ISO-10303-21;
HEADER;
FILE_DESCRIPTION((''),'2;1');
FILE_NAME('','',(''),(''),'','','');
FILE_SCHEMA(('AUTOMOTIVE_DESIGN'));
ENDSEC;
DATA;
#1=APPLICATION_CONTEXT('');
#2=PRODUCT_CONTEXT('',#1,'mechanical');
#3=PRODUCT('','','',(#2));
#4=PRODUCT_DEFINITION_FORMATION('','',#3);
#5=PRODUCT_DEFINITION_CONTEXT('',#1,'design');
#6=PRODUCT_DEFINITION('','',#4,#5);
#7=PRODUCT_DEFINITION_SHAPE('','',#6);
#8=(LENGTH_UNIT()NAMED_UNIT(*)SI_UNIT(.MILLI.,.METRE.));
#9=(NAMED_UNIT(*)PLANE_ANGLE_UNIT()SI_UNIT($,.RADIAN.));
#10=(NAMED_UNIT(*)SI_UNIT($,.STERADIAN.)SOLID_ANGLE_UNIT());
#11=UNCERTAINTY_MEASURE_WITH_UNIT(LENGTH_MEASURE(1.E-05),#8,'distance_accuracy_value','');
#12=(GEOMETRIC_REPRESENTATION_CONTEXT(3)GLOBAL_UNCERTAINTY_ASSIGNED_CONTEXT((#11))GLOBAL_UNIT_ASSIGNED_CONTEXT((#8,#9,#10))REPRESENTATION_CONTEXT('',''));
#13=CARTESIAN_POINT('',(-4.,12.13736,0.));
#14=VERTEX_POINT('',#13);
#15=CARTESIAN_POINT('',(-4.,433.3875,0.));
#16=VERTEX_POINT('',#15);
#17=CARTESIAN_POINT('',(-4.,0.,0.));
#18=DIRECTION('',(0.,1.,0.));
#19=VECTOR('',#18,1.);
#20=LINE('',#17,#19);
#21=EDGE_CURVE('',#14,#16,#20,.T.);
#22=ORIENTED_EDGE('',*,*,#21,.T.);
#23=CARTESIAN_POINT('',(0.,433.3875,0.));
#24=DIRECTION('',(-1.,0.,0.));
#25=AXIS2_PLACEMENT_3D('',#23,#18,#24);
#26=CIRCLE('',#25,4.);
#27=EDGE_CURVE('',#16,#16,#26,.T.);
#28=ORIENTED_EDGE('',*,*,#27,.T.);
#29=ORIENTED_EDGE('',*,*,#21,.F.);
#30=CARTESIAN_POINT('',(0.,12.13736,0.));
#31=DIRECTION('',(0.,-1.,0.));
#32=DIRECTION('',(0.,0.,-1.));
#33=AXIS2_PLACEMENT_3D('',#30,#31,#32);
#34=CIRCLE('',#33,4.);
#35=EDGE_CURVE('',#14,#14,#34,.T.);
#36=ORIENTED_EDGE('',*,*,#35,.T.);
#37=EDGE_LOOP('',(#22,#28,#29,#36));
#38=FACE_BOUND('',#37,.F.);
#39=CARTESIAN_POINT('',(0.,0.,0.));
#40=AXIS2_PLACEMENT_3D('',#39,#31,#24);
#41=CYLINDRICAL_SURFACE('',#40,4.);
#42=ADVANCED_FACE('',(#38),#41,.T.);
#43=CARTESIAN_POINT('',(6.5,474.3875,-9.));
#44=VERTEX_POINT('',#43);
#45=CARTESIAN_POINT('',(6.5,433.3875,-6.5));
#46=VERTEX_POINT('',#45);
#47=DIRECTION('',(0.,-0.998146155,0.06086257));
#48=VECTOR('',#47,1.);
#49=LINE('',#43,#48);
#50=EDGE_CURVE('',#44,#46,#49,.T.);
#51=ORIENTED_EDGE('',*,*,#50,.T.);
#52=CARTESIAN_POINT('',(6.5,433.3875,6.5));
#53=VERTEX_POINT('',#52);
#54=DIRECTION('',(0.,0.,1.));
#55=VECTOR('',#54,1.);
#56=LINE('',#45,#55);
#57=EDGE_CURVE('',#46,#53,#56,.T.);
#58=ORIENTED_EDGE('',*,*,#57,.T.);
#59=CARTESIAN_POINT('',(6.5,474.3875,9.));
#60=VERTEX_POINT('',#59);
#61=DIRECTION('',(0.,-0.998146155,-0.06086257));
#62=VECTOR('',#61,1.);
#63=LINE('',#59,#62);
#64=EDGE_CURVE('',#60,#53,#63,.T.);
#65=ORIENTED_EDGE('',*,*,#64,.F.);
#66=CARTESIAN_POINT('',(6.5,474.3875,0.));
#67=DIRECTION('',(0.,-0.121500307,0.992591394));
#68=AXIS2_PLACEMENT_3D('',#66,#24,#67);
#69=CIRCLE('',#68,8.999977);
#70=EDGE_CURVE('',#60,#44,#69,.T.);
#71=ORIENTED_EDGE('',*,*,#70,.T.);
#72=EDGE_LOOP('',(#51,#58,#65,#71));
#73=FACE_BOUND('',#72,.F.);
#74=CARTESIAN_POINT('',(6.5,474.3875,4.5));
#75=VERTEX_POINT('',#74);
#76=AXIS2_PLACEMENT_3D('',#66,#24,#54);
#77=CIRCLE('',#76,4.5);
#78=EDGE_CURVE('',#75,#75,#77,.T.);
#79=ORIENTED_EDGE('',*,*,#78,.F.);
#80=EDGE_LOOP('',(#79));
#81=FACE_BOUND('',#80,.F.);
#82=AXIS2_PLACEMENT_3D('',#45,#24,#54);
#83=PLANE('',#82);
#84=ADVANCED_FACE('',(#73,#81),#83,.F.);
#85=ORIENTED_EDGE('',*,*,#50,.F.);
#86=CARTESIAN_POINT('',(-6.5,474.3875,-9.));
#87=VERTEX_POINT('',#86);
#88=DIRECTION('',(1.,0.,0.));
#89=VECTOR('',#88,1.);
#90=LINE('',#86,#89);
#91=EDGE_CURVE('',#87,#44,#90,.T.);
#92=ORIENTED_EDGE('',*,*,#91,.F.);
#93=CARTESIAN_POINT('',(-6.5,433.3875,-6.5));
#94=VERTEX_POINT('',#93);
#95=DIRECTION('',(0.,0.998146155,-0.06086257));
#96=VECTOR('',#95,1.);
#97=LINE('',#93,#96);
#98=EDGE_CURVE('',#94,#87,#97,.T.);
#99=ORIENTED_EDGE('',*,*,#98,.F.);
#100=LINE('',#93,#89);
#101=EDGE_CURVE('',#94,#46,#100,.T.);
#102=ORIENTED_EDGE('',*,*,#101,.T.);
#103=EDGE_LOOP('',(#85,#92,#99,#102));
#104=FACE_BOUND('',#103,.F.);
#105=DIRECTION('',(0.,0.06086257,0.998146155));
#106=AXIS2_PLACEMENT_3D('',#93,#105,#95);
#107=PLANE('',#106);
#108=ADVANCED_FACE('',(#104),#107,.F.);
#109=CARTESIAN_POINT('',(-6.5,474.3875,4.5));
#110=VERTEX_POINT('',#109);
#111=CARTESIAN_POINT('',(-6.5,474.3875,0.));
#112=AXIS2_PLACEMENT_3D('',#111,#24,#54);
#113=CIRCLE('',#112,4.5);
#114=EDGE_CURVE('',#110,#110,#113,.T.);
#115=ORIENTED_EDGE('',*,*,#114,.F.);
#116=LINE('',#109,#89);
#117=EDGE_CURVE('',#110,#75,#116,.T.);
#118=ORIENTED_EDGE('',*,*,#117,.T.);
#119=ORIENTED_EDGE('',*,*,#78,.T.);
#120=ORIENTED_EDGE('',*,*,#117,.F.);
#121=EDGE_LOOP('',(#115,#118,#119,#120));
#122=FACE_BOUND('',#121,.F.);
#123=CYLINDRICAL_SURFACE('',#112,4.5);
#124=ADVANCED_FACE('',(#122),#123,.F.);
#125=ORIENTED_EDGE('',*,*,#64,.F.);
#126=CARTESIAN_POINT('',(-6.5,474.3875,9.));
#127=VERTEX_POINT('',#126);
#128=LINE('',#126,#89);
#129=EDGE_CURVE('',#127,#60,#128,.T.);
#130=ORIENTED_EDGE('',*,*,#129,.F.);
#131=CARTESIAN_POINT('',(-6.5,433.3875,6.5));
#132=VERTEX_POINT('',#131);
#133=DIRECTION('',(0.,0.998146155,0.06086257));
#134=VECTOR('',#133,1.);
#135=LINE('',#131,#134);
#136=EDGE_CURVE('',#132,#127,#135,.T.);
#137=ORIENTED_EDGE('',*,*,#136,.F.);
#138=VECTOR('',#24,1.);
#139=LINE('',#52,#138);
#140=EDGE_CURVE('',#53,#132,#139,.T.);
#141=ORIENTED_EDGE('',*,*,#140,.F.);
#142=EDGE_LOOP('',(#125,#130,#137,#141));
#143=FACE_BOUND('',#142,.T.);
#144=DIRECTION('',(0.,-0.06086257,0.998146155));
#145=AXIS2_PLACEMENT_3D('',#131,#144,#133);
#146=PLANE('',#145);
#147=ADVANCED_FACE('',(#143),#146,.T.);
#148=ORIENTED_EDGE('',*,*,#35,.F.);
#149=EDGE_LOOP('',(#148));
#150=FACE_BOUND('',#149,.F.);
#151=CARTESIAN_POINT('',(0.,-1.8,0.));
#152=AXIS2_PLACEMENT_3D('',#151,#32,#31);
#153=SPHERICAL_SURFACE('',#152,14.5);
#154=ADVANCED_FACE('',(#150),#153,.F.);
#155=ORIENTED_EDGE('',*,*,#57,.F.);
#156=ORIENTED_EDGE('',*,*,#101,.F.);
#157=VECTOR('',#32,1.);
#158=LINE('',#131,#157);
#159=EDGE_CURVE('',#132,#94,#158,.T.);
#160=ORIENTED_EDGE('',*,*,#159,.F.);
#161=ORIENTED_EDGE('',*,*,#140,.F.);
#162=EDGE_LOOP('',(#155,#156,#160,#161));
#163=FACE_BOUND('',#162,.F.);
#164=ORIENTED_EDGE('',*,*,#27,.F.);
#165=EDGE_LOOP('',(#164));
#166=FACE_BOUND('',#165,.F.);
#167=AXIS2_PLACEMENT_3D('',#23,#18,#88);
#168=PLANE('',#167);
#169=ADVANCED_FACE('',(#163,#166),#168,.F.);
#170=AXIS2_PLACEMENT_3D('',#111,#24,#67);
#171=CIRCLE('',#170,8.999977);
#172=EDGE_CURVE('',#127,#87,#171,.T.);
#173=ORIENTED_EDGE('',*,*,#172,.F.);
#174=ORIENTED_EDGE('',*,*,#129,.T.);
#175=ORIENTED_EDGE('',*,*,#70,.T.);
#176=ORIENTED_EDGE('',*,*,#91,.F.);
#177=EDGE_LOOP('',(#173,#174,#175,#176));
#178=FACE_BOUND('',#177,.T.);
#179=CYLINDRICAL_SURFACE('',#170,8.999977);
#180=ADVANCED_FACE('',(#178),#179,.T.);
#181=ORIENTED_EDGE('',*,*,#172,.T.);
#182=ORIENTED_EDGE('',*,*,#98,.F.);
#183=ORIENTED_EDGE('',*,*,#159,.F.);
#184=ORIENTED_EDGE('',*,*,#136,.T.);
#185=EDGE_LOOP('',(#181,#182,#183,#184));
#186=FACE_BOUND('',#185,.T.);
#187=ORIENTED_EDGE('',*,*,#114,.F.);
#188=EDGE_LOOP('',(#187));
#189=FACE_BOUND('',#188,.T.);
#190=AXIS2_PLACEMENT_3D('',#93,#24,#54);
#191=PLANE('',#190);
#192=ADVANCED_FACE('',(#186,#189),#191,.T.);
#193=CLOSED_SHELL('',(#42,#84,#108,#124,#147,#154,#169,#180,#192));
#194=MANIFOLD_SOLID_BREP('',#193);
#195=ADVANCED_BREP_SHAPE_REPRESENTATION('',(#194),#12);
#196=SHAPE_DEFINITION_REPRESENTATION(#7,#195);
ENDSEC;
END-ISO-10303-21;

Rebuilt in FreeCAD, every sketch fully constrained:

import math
import FreeCAD as App
import Part
import Sketcher
Q = App.Units.Quantity


def add_polygon(sketch, points):
    """Adds a closed chain of lines whose ends are joined by coincident constraints."""
    first, n = sketch.GeometryCount, len(points)
    for a, b in zip(points, points[1:] + points[:1]):
        sketch.addGeometry(Part.LineSegment(App.Vector(*a, 0), App.Vector(*b, 0)), False)
    for i in range(n):
        sketch.addConstraint(Sketcher.Constraint("Coincident", first + i, 2, first + (i + 1) % n, 1))

doc = App.newDocument("Part")
params = doc.addObject("Spreadsheet::Sheet", "Params")
for row, (alias, value) in enumerate([
    ("sketch1_diameter", "8 mm"),
    ("pad1_length", "433.3875 mm"),
    ("sketch2_width", "13 mm"),
    ("pad2_length", "41 mm"),
    ("sketch3_radius", "9 mm"),
    ("sketch3_width", "41 mm"),
    ("sketch3_height", "13 mm"),
    ("pad3_length", "13 mm"),
    ("sketch4_diameter", "9 mm"),
    ("pocket1_length", "15 mm"),
    ("sketch5_radius", "14.5 mm"),
    ("groove_angle", "360 deg"),
], start=1):
    params.set(f"A{row}", alias)
    params.set(f"B{row}", "=" + value)
    params.setAlias(f"B{row}", alias)

body = doc.addObject("PartDesign::Body", "Body")

sketch1 = doc.addObject("Sketcher::SketchObject", "Sketch")
body.addObject(sketch1)
sketch1.AttachmentSupport = (doc.XZ_Plane, [""])
sketch1.MapMode = "FlatFace"
sketch1.addGeometry(Part.Circle(App.Vector(0, 0, 0), App.Vector(0, 0, 1), 4), False)
sketch1.addConstraint(Sketcher.Constraint("Coincident", 0, 3, -1, 1))
sketch1.addConstraint(Sketcher.Constraint("Diameter", 0, Q("8 mm")))
sketch1.setExpression("Constraints[1]", "Params.sketch1_diameter")
pad1 = doc.addObject("PartDesign::Pad", "Pad")
body.addObject(pad1)
pad1.Profile = sketch1
pad1.setExpression("Length", "Params.pad1_length")
pad1.Reversed = True

sketch2 = doc.addObject("Sketcher::SketchObject", "Sketch001")
body.addObject(sketch2)
sketch2.AttachmentSupport = (doc.XZ_Plane, [""])
sketch2.MapMode = "FlatFace"
sketch2.AttachmentOffset = App.Placement(App.Vector(0, 0, -433.3875), App.Rotation())
add_polygon(sketch2, [(-6, 6), (6, 6), (6, -6), (-6, -6)])
sketch2.addConstraint(Sketcher.Constraint("Horizontal", 0))
sketch2.addConstraint(Sketcher.Constraint("Vertical", 1))
sketch2.addConstraint(Sketcher.Constraint("Horizontal", 2))
sketch2.addConstraint(Sketcher.Constraint("Vertical", 3))
sketch2.addConstraint(Sketcher.Constraint("Symmetric", 0, 2, 2, 2, -1, 1))
sketch2.addConstraint(Sketcher.Constraint("Equal", 2, 1))
sketch2.addConstraint(Sketcher.Constraint("DistanceX", 0, 1, 0, 2, Q("13 mm")))
sketch2.setExpression("Constraints[10]", "Params.sketch2_width")
pad2 = doc.addObject("PartDesign::Pad", "Pad001")
body.addObject(pad2)
pad2.Profile = sketch2
pad2.setExpression("Length", "Params.pad2_length")
pad2.Reversed = True

sketch3 = doc.addObject("Sketcher::SketchObject", "Sketch002")
body.addObject(sketch3)
sketch3.AttachmentSupport = (doc.YZ_Plane, [""])
sketch3.MapMode = "FlatFace"
sketch3.AttachmentOffset = App.Placement(App.Vector(0, 0, -6.5), App.Rotation())
sketch3.addGeometry(Part.LineSegment(App.Vector(474, 6, 0), App.Vector(433, 6, 0)), False)
sketch3.addGeometry(Part.LineSegment(App.Vector(433, 6, 0), App.Vector(474, 9, 0)), False)
sketch3.addGeometry(Part.ArcOfCircle(Part.Circle(App.Vector(474, 0, 0), App.Vector(0, 0, 1), 9), math.radians(-90), math.radians(90)), False)
sketch3.addGeometry(Part.LineSegment(App.Vector(474, -9, 0), App.Vector(433, -6, 0)), False)
sketch3.addGeometry(Part.LineSegment(App.Vector(433, -6, 0), App.Vector(474, -6, 0)), False)
sketch3.addGeometry(Part.LineSegment(App.Vector(474, -6, 0), App.Vector(474, 6, 0)), False)
sketch3.addConstraint(Sketcher.Constraint("Coincident", 0, 2, 1, 1))
sketch3.addConstraint(Sketcher.Constraint("Coincident", 1, 2, 2, 2))
sketch3.addConstraint(Sketcher.Constraint("Coincident", 2, 1, 3, 1))
sketch3.addConstraint(Sketcher.Constraint("Coincident", 3, 2, 4, 1))
sketch3.addConstraint(Sketcher.Constraint("Coincident", 4, 2, 5, 1))
sketch3.addConstraint(Sketcher.Constraint("Coincident", 5, 2, 0, 1))
sketch3.addConstraint(Sketcher.Constraint("Horizontal", 0))
sketch3.addConstraint(Sketcher.Constraint("Horizontal", 4))
sketch3.addConstraint(Sketcher.Constraint("Vertical", 5))
sketch3.addConstraint(Sketcher.Constraint("Symmetric", 1, 2, 2, 1, -1))
sketch3.addConstraint(Sketcher.Constraint("Symmetric", 0, 2, 3, 2, -1))
sketch3.addConstraint(Sketcher.Constraint("Vertical", 2, 3, 1, 2))
sketch3.addConstraint(Sketcher.Constraint("Vertical", 2, 1, 4, 2))
sketch3.addConstraint(Sketcher.Constraint("Radius", 2, Q("9 mm")))
sketch3.addConstraint(Sketcher.Constraint("DistanceX", 0, 2, 0, 1, Q("41 mm")))
sketch3.addConstraint(Sketcher.Constraint("DistanceY", 5, 1, 5, 2, Q("13 mm")))
sketch3.addConstraint(Sketcher.Constraint("DistanceX", -1, 1, 2, 3, Q("474.3875 mm")))
sketch3.setExpression("Constraints[13]", "Params.sketch3_radius")
sketch3.setExpression("Constraints[14]", "Params.sketch3_width")
sketch3.setExpression("Constraints[15]", "Params.sketch3_height")
pad3 = doc.addObject("PartDesign::Pad", "Pad002")
body.addObject(pad3)
pad3.Profile = sketch3
pad3.setExpression("Length", "Params.pad3_length")

sketch4 = doc.addObject("Sketcher::SketchObject", "Sketch003")
body.addObject(sketch4)
sketch4.AttachmentSupport = (doc.YZ_Plane, [""])
sketch4.MapMode = "FlatFace"
sketch4.AttachmentOffset = App.Placement(App.Vector(0, 0, -6.5), App.Rotation())
sketch4.addGeometry(Part.Circle(App.Vector(474.4, 0, 0), App.Vector(0, 0, 1), 4.5), False)
sketch4.addConstraint(Sketcher.Constraint("PointOnObject", 0, 3, -1))
sketch4.addConstraint(Sketcher.Constraint("Diameter", 0, Q("9 mm")))
sketch4.addConstraint(Sketcher.Constraint("DistanceX", -1, 1, 0, 3, Q("474.3875 mm")))
sketch4.setExpression("Constraints[1]", "Params.sketch4_diameter")
pocket1 = doc.addObject("PartDesign::Pocket", "Pocket")
body.addObject(pocket1)
pocket1.Profile = sketch4
pocket1.setExpression("Length", "Params.pocket1_length")
pocket1.Reversed = True

sketch5 = doc.addObject("Sketcher::SketchObject", "Sketch004")
body.addObject(sketch5)
sketch5.AttachmentSupport = (doc.YZ_Plane, [""])
sketch5.MapMode = "FlatFace"
sketch5.addGeometry(Part.LineSegment(App.Vector(-2, -14, 0), App.Vector(-2, 14, 0)), False)
sketch5.addGeometry(Part.ArcOfCircle(Part.Circle(App.Vector(-2, 0, 0), App.Vector(0, 0, 1), 14), math.radians(90), math.radians(270)), False)
sketch5.addGeometry(Part.LineSegment(App.Vector(-2, 14, 0), App.Vector(-2, -14, 0)), True)
sketch5.addConstraint(Sketcher.Constraint("Coincident", 0, 1, 1, 2))
sketch5.addConstraint(Sketcher.Constraint("Coincident", 1, 1, 0, 2))
sketch5.addConstraint(Sketcher.Constraint("Vertical", 0))
sketch5.addConstraint(Sketcher.Constraint("Vertical", 2))
sketch5.addConstraint(Sketcher.Constraint("Coincident", 2, 1, 1, 1))
sketch5.addConstraint(Sketcher.Constraint("PointOnObject", 1, 3, -1))
sketch5.addConstraint(Sketcher.Constraint("Vertical", 1, 3, 0, 1))
sketch5.addConstraint(Sketcher.Constraint("Equal", 0, 2))
sketch5.addConstraint(Sketcher.Constraint("DistanceX", 1, 3, -1, 1, Q("1.8 mm")))
sketch5.addConstraint(Sketcher.Constraint("Radius", 1, Q("14.5 mm")))
sketch5.setExpression("Constraints[9]", "Params.sketch5_radius")
groove = doc.addObject("PartDesign::Groove", "Groove")
body.addObject(groove)
groove.Profile = sketch5
groove.ReferenceAxis = (sketch5, ["Axis0"])
groove.setExpression("Angle", "Params.groove_angle")

doc.recompute()
